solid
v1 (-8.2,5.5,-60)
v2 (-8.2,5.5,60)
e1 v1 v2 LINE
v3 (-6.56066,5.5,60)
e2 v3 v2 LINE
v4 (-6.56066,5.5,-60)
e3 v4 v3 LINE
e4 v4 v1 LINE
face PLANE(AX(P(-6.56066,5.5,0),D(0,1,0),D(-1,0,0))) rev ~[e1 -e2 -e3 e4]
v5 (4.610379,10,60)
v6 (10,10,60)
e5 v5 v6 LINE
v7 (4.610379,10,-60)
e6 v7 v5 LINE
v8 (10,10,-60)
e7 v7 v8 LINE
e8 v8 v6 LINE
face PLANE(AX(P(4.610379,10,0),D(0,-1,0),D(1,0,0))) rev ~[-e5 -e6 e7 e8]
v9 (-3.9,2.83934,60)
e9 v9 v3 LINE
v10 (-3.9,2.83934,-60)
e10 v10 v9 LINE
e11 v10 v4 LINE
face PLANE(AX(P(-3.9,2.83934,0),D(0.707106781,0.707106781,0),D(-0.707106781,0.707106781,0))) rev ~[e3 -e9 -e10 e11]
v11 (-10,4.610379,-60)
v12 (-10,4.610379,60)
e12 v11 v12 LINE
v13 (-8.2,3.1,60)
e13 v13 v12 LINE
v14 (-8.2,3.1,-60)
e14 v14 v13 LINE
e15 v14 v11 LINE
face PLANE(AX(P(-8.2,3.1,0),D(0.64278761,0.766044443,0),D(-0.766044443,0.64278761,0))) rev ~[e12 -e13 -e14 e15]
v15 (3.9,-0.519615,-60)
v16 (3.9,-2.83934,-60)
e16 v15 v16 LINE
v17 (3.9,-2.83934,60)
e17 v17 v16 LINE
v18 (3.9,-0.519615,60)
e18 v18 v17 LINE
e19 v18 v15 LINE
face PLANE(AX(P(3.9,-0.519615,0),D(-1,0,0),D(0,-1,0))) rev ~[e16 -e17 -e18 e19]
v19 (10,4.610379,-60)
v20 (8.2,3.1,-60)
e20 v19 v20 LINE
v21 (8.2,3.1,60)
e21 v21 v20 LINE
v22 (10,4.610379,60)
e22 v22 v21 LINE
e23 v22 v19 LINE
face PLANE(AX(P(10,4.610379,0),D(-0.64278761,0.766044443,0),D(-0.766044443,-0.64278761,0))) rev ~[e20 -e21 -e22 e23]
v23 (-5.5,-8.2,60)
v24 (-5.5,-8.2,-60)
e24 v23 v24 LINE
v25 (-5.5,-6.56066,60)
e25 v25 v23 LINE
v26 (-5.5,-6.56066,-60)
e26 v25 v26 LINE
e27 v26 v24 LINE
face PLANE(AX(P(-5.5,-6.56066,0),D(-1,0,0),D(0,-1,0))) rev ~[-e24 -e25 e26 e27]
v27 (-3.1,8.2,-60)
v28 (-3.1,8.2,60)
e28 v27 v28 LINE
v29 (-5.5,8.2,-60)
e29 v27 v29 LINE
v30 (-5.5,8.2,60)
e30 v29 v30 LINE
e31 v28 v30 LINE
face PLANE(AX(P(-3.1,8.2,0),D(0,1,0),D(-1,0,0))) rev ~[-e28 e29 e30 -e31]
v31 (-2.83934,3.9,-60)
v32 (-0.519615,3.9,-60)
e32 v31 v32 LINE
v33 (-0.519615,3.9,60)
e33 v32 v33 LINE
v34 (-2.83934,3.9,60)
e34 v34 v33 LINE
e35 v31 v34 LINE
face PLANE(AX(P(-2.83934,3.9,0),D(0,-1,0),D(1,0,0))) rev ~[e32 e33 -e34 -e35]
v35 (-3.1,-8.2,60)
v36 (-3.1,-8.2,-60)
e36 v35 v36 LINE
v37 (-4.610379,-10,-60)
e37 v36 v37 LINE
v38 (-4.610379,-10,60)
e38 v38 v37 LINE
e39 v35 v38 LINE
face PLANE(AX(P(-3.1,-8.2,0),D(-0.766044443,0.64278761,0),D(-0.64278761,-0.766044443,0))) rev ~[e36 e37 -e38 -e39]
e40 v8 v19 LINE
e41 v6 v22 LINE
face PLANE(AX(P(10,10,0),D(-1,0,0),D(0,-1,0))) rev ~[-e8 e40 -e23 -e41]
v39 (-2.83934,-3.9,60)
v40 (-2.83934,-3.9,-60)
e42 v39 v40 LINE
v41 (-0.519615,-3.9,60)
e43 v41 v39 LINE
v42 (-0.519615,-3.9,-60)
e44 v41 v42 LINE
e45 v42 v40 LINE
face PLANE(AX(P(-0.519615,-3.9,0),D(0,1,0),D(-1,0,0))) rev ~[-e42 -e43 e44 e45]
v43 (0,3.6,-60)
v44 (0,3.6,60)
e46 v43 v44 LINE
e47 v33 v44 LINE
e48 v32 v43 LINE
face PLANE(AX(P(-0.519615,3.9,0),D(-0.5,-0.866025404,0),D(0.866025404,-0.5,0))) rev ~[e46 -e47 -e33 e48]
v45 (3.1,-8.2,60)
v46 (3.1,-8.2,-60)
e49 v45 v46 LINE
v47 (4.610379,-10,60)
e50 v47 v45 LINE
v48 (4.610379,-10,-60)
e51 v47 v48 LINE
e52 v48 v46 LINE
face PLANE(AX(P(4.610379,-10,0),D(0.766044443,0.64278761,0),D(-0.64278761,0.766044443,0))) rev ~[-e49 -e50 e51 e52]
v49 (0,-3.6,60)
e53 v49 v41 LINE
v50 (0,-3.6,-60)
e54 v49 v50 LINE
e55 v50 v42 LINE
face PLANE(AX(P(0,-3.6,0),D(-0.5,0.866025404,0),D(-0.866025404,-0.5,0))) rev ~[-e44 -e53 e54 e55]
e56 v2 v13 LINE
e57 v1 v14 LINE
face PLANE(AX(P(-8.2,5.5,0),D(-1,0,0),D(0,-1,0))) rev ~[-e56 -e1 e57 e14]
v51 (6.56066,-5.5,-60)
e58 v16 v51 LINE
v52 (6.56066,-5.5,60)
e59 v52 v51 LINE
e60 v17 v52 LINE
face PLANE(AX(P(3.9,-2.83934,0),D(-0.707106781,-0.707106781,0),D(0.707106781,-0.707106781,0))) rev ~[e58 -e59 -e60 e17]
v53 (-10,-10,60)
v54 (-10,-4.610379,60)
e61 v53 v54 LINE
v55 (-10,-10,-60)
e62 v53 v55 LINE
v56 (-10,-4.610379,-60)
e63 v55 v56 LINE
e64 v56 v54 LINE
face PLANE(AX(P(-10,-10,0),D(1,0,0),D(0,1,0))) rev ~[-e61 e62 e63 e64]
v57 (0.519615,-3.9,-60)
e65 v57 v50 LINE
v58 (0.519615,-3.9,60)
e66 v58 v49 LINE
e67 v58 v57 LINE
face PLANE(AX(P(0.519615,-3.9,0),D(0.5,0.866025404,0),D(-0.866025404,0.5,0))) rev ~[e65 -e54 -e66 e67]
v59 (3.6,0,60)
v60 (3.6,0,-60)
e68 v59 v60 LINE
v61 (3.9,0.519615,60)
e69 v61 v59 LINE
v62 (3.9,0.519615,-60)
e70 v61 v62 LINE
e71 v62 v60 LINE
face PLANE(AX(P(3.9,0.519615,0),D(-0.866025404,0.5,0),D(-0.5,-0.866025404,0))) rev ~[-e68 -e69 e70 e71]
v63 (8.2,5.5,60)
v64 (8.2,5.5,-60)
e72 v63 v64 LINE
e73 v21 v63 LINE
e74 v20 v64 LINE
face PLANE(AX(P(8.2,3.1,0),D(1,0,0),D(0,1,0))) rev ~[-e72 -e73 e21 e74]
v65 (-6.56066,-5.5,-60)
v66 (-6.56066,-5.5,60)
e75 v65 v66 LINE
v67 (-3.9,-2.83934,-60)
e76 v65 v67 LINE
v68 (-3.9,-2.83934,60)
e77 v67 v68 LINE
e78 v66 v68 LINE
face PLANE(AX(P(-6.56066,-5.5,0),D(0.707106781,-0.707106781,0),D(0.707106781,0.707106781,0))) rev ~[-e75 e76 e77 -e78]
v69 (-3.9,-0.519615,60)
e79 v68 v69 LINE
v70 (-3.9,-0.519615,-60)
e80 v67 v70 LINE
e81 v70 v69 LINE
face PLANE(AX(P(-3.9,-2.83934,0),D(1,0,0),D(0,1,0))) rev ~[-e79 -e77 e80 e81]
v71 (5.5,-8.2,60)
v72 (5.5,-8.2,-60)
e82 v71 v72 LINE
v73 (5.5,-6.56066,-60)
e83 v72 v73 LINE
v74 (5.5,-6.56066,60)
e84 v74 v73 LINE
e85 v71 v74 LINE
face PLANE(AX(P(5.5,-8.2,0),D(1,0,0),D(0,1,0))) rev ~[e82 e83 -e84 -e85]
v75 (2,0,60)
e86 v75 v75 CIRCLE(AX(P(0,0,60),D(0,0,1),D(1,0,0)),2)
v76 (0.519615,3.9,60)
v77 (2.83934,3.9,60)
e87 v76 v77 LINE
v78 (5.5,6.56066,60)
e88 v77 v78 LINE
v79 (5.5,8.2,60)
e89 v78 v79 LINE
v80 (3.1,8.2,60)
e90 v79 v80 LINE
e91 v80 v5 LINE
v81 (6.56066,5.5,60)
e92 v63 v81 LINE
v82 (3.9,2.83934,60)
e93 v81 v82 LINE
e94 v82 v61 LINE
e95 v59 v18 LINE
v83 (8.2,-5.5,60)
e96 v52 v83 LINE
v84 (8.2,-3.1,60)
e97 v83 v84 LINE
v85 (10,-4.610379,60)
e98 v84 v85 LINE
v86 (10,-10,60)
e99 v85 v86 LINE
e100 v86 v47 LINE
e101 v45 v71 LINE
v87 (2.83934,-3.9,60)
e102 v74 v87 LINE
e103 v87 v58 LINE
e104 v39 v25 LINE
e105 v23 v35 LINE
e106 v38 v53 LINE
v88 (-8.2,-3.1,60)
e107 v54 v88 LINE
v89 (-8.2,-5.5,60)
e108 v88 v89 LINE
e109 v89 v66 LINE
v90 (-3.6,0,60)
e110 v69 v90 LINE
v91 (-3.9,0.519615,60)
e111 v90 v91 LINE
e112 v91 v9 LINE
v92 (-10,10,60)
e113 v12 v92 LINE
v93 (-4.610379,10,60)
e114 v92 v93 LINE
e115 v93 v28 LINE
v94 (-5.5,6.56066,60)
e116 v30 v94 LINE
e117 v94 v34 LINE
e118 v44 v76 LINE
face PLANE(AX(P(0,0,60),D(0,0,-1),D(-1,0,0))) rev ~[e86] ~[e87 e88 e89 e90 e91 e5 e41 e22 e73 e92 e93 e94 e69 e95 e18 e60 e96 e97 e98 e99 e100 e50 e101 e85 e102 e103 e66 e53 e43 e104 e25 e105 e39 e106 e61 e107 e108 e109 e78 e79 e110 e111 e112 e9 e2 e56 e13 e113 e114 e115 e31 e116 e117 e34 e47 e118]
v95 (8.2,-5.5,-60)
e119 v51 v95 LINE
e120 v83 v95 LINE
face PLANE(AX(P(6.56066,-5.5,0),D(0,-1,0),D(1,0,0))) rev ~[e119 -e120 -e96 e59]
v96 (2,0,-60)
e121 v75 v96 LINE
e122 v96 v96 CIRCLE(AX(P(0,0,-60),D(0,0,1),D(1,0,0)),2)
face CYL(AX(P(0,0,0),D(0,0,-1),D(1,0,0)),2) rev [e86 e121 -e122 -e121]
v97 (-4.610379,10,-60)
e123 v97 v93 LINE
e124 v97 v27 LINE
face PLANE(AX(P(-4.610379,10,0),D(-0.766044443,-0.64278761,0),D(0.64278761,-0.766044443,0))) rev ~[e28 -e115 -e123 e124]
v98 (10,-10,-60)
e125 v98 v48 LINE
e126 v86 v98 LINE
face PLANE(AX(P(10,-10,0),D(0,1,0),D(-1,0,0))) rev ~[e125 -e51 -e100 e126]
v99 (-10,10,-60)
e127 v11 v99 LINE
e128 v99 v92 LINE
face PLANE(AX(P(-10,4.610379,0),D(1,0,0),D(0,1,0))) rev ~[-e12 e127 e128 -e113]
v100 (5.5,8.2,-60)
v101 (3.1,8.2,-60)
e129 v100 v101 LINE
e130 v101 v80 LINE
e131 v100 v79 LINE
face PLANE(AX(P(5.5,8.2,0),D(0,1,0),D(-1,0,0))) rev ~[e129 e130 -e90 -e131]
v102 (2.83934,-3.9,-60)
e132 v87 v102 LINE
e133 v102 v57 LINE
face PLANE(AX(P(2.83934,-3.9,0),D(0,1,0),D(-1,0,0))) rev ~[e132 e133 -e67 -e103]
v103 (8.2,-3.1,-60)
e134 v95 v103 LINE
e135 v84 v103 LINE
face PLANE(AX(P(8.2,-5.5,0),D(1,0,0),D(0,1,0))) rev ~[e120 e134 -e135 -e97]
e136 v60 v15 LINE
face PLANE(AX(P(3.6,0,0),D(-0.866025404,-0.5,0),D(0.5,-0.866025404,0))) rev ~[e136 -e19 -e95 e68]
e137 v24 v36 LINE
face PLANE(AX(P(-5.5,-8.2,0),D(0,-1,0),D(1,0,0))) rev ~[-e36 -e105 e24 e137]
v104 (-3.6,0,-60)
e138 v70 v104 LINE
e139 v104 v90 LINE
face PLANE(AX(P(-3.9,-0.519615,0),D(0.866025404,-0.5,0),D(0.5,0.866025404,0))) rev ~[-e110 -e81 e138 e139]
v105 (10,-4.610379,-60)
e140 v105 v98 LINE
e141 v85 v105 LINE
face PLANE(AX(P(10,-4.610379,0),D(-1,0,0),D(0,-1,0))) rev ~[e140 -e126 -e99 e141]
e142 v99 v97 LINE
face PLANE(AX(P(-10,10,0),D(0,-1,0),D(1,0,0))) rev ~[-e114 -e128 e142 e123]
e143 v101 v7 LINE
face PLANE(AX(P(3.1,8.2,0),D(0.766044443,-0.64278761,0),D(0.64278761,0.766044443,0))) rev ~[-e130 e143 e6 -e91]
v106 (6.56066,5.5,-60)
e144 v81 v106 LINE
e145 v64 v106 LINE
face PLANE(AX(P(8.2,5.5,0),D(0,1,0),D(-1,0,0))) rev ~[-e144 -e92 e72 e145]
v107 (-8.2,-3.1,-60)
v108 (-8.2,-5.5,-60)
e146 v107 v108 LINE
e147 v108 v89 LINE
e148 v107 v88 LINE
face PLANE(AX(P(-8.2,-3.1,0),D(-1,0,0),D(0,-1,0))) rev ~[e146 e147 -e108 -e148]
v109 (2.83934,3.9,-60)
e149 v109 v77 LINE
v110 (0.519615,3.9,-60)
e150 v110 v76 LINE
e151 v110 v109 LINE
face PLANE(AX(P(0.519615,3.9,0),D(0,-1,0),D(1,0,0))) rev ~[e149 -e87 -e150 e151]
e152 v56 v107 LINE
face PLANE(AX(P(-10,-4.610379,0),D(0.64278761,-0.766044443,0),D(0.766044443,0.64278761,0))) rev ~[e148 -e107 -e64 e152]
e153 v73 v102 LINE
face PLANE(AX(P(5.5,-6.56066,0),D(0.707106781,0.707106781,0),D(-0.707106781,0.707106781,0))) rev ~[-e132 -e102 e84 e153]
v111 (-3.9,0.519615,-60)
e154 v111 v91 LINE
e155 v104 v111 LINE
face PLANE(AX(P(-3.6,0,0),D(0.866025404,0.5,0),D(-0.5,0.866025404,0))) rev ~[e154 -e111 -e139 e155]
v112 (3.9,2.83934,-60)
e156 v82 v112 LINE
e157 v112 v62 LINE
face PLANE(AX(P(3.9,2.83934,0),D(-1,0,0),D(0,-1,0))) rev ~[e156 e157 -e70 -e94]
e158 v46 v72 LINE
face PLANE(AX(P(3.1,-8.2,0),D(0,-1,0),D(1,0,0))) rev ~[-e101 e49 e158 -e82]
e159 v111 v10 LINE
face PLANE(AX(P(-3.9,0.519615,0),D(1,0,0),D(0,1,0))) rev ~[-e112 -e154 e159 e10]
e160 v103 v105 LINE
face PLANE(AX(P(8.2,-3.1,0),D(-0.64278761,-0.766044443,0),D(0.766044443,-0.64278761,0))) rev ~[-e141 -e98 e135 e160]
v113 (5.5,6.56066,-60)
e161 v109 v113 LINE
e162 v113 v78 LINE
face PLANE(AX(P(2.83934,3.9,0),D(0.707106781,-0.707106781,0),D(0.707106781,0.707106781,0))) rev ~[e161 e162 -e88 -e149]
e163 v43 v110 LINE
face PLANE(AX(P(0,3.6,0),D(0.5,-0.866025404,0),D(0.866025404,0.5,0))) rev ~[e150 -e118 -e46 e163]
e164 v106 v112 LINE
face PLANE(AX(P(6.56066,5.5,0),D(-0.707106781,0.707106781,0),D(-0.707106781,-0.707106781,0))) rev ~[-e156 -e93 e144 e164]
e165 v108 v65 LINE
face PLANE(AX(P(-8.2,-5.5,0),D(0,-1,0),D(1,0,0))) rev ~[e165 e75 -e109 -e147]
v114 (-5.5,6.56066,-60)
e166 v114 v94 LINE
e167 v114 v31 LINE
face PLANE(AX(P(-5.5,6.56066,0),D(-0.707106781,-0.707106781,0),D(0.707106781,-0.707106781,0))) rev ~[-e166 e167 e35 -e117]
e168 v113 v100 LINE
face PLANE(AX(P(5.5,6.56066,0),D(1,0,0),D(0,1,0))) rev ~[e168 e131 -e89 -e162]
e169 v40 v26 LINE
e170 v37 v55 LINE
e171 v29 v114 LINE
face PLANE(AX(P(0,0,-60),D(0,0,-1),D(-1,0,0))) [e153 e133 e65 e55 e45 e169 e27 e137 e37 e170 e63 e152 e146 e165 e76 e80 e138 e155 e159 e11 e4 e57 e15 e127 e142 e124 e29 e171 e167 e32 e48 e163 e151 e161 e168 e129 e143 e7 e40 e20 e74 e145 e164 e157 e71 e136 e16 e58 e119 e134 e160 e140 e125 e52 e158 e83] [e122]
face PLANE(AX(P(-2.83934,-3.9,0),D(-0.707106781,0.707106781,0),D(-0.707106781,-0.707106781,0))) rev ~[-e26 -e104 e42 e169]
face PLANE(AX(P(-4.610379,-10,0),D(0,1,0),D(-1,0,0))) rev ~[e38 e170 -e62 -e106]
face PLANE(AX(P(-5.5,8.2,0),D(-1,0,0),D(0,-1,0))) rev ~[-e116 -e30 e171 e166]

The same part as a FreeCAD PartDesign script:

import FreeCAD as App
import Part
import Sketcher

V = App.Vector
Q = App.Units.Quantity


def add_polygon(sketch, points):
    """Adds a closed chain of lines whose ends are joined by coincident constraints."""
    first, n = sketch.GeometryCount, len(points)
    for a, b in zip(points, points[1:] + points[:1]):
        sketch.addGeometry(Part.LineSegment(App.Vector(*a, 0), App.Vector(*b, 0)), False)
    for i in range(n):
        sketch.addConstraint(Sketcher.Constraint("Coincident", first + i, 2, first + (i + 1) % n, 1))

doc = App.newDocument("Part")
body = doc.addObject("PartDesign::Body", "Body")

sketch1 = body.newObject("Sketcher::SketchObject", "Sketch")
sketch1.AttachmentSupport = (doc.getObject("XY_Plane"), [""])
sketch1.MapMode = "FlatFace"
add_polygon(sketch1, [(10, 4.6), (10, 10), (4.6, 10), (3.1, 8.2), (5.5, 8.2), (5.5, 6.6), (2.8, 3.9), (0.5, 3.9), (0, 3.6), (-0.5, 3.9), (-2.8, 3.9), (-5.5, 6.6), (-5.5, 8.2), (-3.1, 8.2), (-4.6, 10), (-10, 10), (-10, 4.6), (-8.2, 3.1), (-8.2, 5.5), (-6.6, 5.5), (-3.9, 2.8), (-3.9, 0.5), (-3.6, 0), (-3.9, -0.5), (-3.9, -2.8), (-6.6, -5.5), (-8.2, -5.5), (-8.2, -3.1), (-10, -4.6), (-10, -10), (-4.6, -10), (-3.1, -8.2), (-5.5, -8.2), (-5.5, -6.6), (-2.8, -3.9), (-0.5, -3.9), (0, -3.6), (0.5, -3.9), (2.8, -3.9), (5.5, -6.6), (5.5, -8.2), (3.1, -8.2), (4.6, -10), (10, -10), (10, -4.6), (8.2, -3.1), (8.2, -5.5), (6.6, -5.5), (3.9, -2.8), (3.9, -0.5), (3.6, 0), (3.9, 0.5), (3.9, 2.8), (6.6, 5.5), (8.2, 5.5), (8.2, 3.1)])
sketch1.addGeometry(Part.Circle(V(0, 0, 0), V(0, 0, 1), 2), False)
sketch1.addConstraint(Sketcher.Constraint("Vertical", 0))
sketch1.addConstraint(Sketcher.Constraint("Horizontal", 1))
sketch1.addConstraint(Sketcher.Constraint("Horizontal", 3))
sketch1.addConstraint(Sketcher.Constraint("Vertical", 4))
sketch1.addConstraint(Sketcher.Constraint("Horizontal", 6))
sketch1.addConstraint(Sketcher.Constraint("Horizontal", 9))
sketch1.addConstraint(Sketcher.Constraint("Vertical", 11))
sketch1.addConstraint(Sketcher.Constraint("Horizontal", 12))
sketch1.addConstraint(Sketcher.Constraint("Horizontal", 14))
sketch1.addConstraint(Sketcher.Constraint("Vertical", 15))
sketch1.addConstraint(Sketcher.Constraint("Vertical", 17))
sketch1.addConstraint(Sketcher.Constraint("Horizontal", 18))
sketch1.addConstraint(Sketcher.Constraint("Vertical", 20))
sketch1.addConstraint(Sketcher.Constraint("Vertical", 23))
sketch1.addConstraint(Sketcher.Constraint("Horizontal", 25))
sketch1.addConstraint(Sketcher.Constraint("Vertical", 26))
sketch1.addConstraint(Sketcher.Constraint("Vertical", 28))
sketch1.addConstraint(Sketcher.Constraint("Horizontal", 29))
sketch1.addConstraint(Sketcher.Constraint("Horizontal", 31))
sketch1.addConstraint(Sketcher.Constraint("Vertical", 32))
sketch1.addConstraint(Sketcher.Constraint("Horizontal", 34))
sketch1.addConstraint(Sketcher.Constraint("Horizontal", 37))
sketch1.addConstraint(Sketcher.Constraint("Vertical", 39))
sketch1.addConstraint(Sketcher.Constraint("Horizontal", 40))
sketch1.addConstraint(Sketcher.Constraint("Horizontal", 42))
sketch1.addConstraint(Sketcher.Constraint("Vertical", 43))
sketch1.addConstraint(Sketcher.Constraint("Vertical", 45))
sketch1.addConstraint(Sketcher.Constraint("Horizontal", 46))
sketch1.addConstraint(Sketcher.Constraint("Vertical", 48))
sketch1.addConstraint(Sketcher.Constraint("Vertical", 51))
sketch1.addConstraint(Sketcher.Constraint("Horizontal", 53))
sketch1.addConstraint(Sketcher.Constraint("Vertical", 54))
sketch1.addConstraint(Sketcher.Constraint("Coincident", 56, 3, -1, 1))
sketch1.addConstraint(Sketcher.Constraint("Symmetric", 0, 2, 28, 2, -1, 1))
sketch1.addConstraint(Sketcher.Constraint("Symmetric", 2, 2, 30, 2, -1, 1))
sketch1.addConstraint(Sketcher.Constraint("Symmetric", 4, 2, 32, 2, -1, 1))
sketch1.addConstraint(Sketcher.Constraint("Symmetric", 5, 2, 33, 2, -1, 1))
sketch1.addConstraint(Sketcher.Constraint("Symmetric", 7, 2, 35, 2, -1, 1))
sketch1.addConstraint(Sketcher.Constraint("Symmetric", 8, 2, 36, 2, -1, 1))
sketch1.addConstraint(Sketcher.Constraint("Symmetric", 10, 2, 38, 2, -1, 1))
sketch1.addConstraint(Sketcher.Constraint("Symmetric", 12, 2, 40, 2, -1, 1))
sketch1.addConstraint(Sketcher.Constraint("Symmetric", 13, 2, 41, 2, -1, 1))
sketch1.addConstraint(Sketcher.Constraint("Symmetric", 15, 2, 43, 2, -1, 1))
sketch1.addConstraint(Sketcher.Constraint("Symmetric", 16, 2, 44, 2, -1, 1))
sketch1.addConstraint(Sketcher.Constraint("Symmetric", 18, 2, 46, 2, -1, 1))
sketch1.addConstraint(Sketcher.Constraint("Symmetric", 19, 2, 47, 2, -1, 1))
sketch1.addConstraint(Sketcher.Constraint("Symmetric", 21, 2, 49, 2, -1, 1))
sketch1.addConstraint(Sketcher.Constraint("Symmetric", 22, 2, 50, 2, -1, 1))
sketch1.addConstraint(Sketcher.Constraint("Symmetric", 24, 2, 52, 2, -1, 1))
sketch1.addConstraint(Sketcher.Constraint("Symmetric", 26, 2, 54, 2, -1, 1))
sketch1.addConstraint(Sketcher.Constraint("Symmetric", 6, 2, 8, 2, -2))
sketch1.addConstraint(Sketcher.Constraint("Symmetric", 4, 2, 10, 2, -2))
sketch1.addConstraint(Sketcher.Constraint("Symmetric", 2, 2, 12, 2, -2))
sketch1.addConstraint(Sketcher.Constraint("Symmetric", 1, 2, 13, 2, -2))
sketch1.addConstraint(Sketcher.Constraint("Symmetric", 27, 2, 43, 2, -2))
sketch1.addConstraint(Sketcher.Constraint("Symmetric", 26, 2, 44, 2, -2))
sketch1.addConstraint(Sketcher.Constraint("Symmetric", 24, 2, 46, 2, -2))
sketch1.addConstraint(Sketcher.Constraint("Symmetric", 23, 2, 47, 2, -2))
sketch1.addConstraint(Sketcher.Constraint("PointOnObject", 7, 2, -2))
sketch1.addConstraint(Sketcher.Constraint("PointOnObject", 21, 2, -1))
sketch1.addConstraint(Sketcher.Constraint("Perpendicular", 5, 10))
sketch1.addConstraint(Sketcher.Constraint("Perpendicular", 2, 16))
sketch1.addConstraint(Sketcher.Constraint("Parallel", 10, 19))
sketch1.addConstraint(Sketcher.Constraint("Perpendicular", 7, 21))
sketch1.addConstraint(Sketcher.Constraint("Perpendicular", 8, 22))
sketch1.addConstraint(Sketcher.Constraint("Perpendicular", 19, 24))
sketch1.addConstraint(Sketcher.Constraint("Perpendicular", 16, 30))
sketch1.addConstraint(Sketcher.Constraint("Perpendicular", 21, 35))
sketch1.addConstraint(Sketcher.Constraint("Perpendicular", 33, 38))
sketch1.addConstraint(Sketcher.Constraint("Perpendicular", 35, 49))
sketch1.addConstraint(Sketcher.Constraint("Perpendicular", 47, 52))
sketch1.addConstraint(Sketcher.Constraint("Perpendicular", 41, 55))
sketch1.addConstraint(Sketcher.Constraint("Equal", 42, 0))
sketch1.addConstraint(Sketcher.Constraint("Equal", 53, 4))
sketch1.addConstraint(Sketcher.Constraint("Equal", 40, 17))
sketch1.addConstraint(Sketcher.Constraint("Equal", 37, 20))
sketch1.addConstraint(Sketcher.Constraint("Equal", 13, 16))
sketch1.addConstraint(Sketcher.Constraint("Equal", 10, 19))
sketch1.addConstraint(Sketcher.Constraint("Equal", 8, 21))
sketch1.addConstraint(Sketcher.Constraint("Diameter", 56, 4.0))
sketch1.addConstraint(Sketcher.Constraint("Angle", 2, Q("-130 deg")))
sketch1.addConstraint(Sketcher.Constraint("Angle", 7, Q("-150 deg")))
sketch1.addConstraint(Sketcher.Constraint("DistanceX", 3, 1, 3, 2, 2.4))
sketch1.addConstraint(Sketcher.Constraint("DistanceX", -1, 1, 0, 2, 10.0))
sketch1.addConstraint(Sketcher.Constraint("Distance", 7, 0.6))
sketch1.addConstraint(Sketcher.Constraint("DistanceX", -1, 1, 2, 2, 3.1))
sketch1.addConstraint(Sketcher.Constraint("DistanceY", -1, 1, 2, 2, 8.2))
sketch1.addConstraint(Sketcher.Constraint("DistanceY", -1, 1, 5, 2, 3.9))
sketch1.addConstraint(Sketcher.Constraint("DistanceX", 18, 1, 18, 2, 1.63934))
pad1 = body.newObject("PartDesign::Pad", "Pad")
pad1.Profile = sketch1
pad1.Length = 120
pad1.Midplane = True

doc.recompute()
